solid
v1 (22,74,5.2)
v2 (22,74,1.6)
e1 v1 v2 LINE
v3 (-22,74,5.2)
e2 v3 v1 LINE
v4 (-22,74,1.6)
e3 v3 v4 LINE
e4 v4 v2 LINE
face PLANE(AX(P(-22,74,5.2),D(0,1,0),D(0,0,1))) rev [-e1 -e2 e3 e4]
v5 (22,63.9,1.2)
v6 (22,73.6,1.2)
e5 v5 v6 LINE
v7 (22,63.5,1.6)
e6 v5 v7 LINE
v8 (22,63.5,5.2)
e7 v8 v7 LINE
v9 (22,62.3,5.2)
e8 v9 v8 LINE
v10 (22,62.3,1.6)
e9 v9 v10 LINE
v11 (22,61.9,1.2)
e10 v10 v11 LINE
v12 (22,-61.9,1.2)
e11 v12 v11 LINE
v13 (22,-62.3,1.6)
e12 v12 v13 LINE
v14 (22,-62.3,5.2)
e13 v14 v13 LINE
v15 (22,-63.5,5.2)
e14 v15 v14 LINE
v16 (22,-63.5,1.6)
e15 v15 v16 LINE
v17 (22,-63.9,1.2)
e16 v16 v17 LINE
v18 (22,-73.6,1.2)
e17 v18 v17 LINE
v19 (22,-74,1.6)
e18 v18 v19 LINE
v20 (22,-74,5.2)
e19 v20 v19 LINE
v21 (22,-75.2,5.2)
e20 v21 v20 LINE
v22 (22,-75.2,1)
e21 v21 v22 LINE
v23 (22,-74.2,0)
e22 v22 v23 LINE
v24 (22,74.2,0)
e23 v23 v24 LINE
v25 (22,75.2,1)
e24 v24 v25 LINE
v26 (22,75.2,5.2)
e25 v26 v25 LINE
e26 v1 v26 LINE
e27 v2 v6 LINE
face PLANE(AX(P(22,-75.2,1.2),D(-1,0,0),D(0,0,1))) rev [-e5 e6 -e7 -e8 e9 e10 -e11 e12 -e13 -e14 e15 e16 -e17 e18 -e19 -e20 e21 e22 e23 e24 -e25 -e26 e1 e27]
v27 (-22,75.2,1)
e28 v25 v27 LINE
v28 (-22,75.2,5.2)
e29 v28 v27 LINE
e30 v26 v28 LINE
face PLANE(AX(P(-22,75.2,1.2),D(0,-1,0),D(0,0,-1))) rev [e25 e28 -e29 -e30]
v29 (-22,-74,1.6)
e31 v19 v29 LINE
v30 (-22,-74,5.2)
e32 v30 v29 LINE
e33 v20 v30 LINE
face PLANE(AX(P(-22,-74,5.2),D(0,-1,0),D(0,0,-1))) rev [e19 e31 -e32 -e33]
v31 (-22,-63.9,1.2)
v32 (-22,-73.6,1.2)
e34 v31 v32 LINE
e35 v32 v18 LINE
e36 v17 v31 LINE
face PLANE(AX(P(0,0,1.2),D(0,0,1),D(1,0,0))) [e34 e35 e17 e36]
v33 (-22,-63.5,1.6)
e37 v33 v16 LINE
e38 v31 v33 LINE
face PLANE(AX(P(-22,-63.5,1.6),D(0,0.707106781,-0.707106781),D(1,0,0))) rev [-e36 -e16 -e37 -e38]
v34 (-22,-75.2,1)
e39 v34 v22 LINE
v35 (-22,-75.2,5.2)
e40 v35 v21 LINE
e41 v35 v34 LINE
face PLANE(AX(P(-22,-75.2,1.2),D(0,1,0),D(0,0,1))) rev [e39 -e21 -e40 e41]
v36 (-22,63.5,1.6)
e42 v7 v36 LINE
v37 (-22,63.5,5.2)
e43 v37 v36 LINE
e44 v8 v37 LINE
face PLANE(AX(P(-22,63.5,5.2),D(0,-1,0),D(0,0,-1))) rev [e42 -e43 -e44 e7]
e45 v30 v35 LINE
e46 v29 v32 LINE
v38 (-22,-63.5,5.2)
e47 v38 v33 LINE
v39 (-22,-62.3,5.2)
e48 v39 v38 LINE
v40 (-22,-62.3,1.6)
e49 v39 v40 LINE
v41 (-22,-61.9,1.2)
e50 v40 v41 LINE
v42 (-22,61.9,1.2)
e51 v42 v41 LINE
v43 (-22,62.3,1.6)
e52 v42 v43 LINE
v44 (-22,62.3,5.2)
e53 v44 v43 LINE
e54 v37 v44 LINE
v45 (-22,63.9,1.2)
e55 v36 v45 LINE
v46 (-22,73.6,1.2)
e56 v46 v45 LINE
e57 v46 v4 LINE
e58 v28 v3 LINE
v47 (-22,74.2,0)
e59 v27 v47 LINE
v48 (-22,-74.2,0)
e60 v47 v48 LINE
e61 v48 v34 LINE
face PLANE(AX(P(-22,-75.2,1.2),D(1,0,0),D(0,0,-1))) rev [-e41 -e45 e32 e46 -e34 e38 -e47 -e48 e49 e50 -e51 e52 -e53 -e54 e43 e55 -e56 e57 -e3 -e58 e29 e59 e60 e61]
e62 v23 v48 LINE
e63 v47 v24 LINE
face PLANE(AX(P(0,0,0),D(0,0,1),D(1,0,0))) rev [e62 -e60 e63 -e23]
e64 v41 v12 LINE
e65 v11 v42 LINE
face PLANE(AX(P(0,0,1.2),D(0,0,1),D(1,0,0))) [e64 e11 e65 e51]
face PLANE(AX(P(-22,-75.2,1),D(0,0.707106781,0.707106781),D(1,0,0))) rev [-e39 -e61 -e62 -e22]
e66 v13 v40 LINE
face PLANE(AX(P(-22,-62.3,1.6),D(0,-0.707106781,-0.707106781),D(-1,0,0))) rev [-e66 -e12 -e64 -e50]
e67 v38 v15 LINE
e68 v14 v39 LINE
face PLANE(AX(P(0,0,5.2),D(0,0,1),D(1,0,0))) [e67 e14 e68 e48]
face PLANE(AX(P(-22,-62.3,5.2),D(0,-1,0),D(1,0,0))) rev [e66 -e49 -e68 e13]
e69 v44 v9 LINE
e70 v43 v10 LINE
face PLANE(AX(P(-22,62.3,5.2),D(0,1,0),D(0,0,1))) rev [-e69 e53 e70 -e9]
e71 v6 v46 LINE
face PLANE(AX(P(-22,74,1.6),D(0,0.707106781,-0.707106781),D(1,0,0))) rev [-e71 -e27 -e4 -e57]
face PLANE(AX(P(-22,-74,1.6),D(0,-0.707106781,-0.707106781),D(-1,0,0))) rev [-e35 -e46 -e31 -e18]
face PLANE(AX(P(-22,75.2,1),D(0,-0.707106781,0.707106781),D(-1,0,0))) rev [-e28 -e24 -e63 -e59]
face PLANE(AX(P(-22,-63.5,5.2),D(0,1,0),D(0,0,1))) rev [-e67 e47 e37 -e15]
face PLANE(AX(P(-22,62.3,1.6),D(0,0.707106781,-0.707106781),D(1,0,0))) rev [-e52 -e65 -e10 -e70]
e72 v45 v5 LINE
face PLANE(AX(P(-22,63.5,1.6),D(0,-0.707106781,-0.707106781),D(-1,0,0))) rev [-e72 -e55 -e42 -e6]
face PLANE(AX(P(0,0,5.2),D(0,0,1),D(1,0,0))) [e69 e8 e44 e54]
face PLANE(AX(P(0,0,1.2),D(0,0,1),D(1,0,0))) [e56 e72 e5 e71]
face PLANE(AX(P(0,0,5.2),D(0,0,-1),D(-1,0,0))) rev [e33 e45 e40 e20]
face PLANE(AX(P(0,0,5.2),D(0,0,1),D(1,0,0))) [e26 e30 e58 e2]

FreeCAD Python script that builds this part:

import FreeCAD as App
import Part
import Sketcher

V = App.Vector
Q = App.Units.Quantity


def edges_at(feature, points):
    """Names of the edges that pass closest to the given points."""
    edges = feature.Shape.Edges
    near = lambda p: min(range(len(edges)), key=lambda i: edges[i].distToShape(Part.Vertex(*p))[0])
    return sorted({f"Edge{near(p) + 1}" for p in points})

doc = App.newDocument("Part")
params = doc.addObject("Spreadsheet::Sheet", "Params")
for row, (alias, value) in enumerate([
    ("sketch1_width", "44 mm"),
    ("sketch1_height", "150.4 mm"),
    ("pad1_length", "1.2 mm"),
    ("sketch2_width", "44 mm"),
    ("sketch2_height", "1.2 mm"),
    ("pad2_length", "4 mm"),
    ("chamfer_size", "0.4 mm"),
    ("chamfer2_size", "1 mm"),
], start=1):
    params.set(f"A{row}", alias)
    params.set(f"B{row}", "=" + value)
    params.setAlias(f"B{row}", alias)

body = doc.addObject("PartDesign::Body", "Body")

sketch1 = body.newObject("Sketcher::SketchObject", "Sketch")
sketch1.AttachmentSupport = (doc.getObject("XY_Plane"), [""])
sketch1.MapMode = "FlatFace"
sketch1.addGeometry(Part.LineSegment(V(-22, -75, 0), V(22, -75, 0)), False)
sketch1.addGeometry(Part.LineSegment(V(22, -75, 0), V(22, 75, 0)), False)
sketch1.addGeometry(Part.LineSegment(V(22, 75, 0), V(-22, 75, 0)), False)
sketch1.addGeometry(Part.LineSegment(V(-22, 75, 0), V(-22, -75, 0)), False)
sketch1.addConstraint(Sketcher.Constraint("Coincident", 0, 2, 1, 1))
sketch1.addConstraint(Sketcher.Constraint("Coincident", 1, 2, 2, 1))
sketch1.addConstraint(Sketcher.Constraint("Coincident", 2, 2, 3, 1))
sketch1.addConstraint(Sketcher.Constraint("Coincident", 3, 2, 0, 1))
sketch1.addConstraint(Sketcher.Constraint("Horizontal", 0))
sketch1.addConstraint(Sketcher.Constraint("Vertical", 1))
sketch1.addConstraint(Sketcher.Constraint("Horizontal", 2))
sketch1.addConstraint(Sketcher.Constraint("Vertical", 3))
sketch1.addConstraint(Sketcher.Constraint("Symmetric", 0, 2, 2, 2, -1, 1))
sketch1.addConstraint(Sketcher.Constraint("DistanceX", 0, 1, 0, 2, Q("44 mm")))
sketch1.addConstraint(Sketcher.Constraint("DistanceY", 1, 1, 1, 2, Q("150.4 mm")))
sketch1.setExpression("Constraints[9]", "Params.sketch1_width")
sketch1.setExpression("Constraints[10]", "Params.sketch1_height")
pad1 = body.newObject("PartDesign::Pad", "Pad")
pad1.Profile = sketch1
pad1.setExpression("Length", "Params.pad1_length")

sketch2 = body.newObject("Sketcher::SketchObject", "Sketch001")
sketch2.AttachmentSupport = (doc.getObject("XY_Plane"), [""])
sketch2.MapMode = "FlatFace"
sketch2.AttachmentOffset = App.Placement(V(0, 0, 1.2), App.Rotation())
sketch2.addGeometry(Part.LineSegment(V(-22, 75.2, 0), V(-22, 74, 0)), False)
sketch2.addGeometry(Part.LineSegment(V(-22, 74, 0), V(22, 74, 0)), False)
sketch2.addGeometry(Part.LineSegment(V(22, 74, 0), V(22, 75.2, 0)), False)
sketch2.addGeometry(Part.LineSegment(V(22, 75.2, 0), V(-22, 75.2, 0)), False)
sketch2.addGeometry(Part.LineSegment(V(-22, -74, 0), V(-22, -75.2, 0)), False)
sketch2.addGeometry(Part.LineSegment(V(-22, -75.2, 0), V(22, -75.2, 0)), False)
sketch2.addGeometry(Part.LineSegment(V(22, -75.2, 0), V(22, -74, 0)), False)
sketch2.addGeometry(Part.LineSegment(V(22, -74, 0), V(-22, -74, 0)), False)
sketch2.addGeometry(Part.LineSegment(V(-22, -62.3, 0), V(-22, -63.5, 0)), False)
sketch2.addGeometry(Part.LineSegment(V(-22, -63.5, 0), V(22, -63.5, 0)), False)
sketch2.addGeometry(Part.LineSegment(V(22, -63.5, 0), V(22, -62.3, 0)), False)
sketch2.addGeometry(Part.LineSegment(V(22, -62.3, 0), V(-22, -62.3, 0)), False)
sketch2.addGeometry(Part.LineSegment(V(-22, 63.5, 0), V(-22, 62.3, 0)), False)
sketch2.addGeometry(Part.LineSegment(V(-22, 62.3, 0), V(22, 62.3, 0)), False)
sketch2.addGeometry(Part.LineSegment(V(22, 62.3, 0), V(22, 63.5, 0)), False)
sketch2.addGeometry(Part.LineSegment(V(22, 63.5, 0), V(-22, 63.5, 0)), False)
sketch2.addConstraint(Sketcher.Constraint("Coincident", 0, 2, 1, 1))
sketch2.addConstraint(Sketcher.Constraint("Coincident", 1, 2, 2, 1))
sketch2.addConstraint(Sketcher.Constraint("Coincident", 2, 2, 3, 1))
sketch2.addConstraint(Sketcher.Constraint("Coincident", 3, 2, 0, 1))
sketch2.addConstraint(Sketcher.Constraint("Coincident", 4, 2, 5, 1))
sketch2.addConstraint(Sketcher.Constraint("Coincident", 5, 2, 6, 1))
sketch2.addConstraint(Sketcher.Constraint("Coincident", 6, 2, 7, 1))
sketch2.addConstraint(Sketcher.Constraint("Coincident", 7, 2, 4, 1))
sketch2.addConstraint(Sketcher.Constraint("Coincident", 8, 2, 9, 1))
sketch2.addConstraint(Sketcher.Constraint("Coincident", 9, 2, 10, 1))
sketch2.addConstraint(Sketcher.Constraint("Coincident", 10, 2, 11, 1))
sketch2.addConstraint(Sketcher.Constraint("Coincident", 11, 2, 8, 1))
sketch2.addConstraint(Sketcher.Constraint("Coincident", 12, 2, 13, 1))
sketch2.addConstraint(Sketcher.Constraint("Coincident", 13, 2, 14, 1))
sketch2.addConstraint(Sketcher.Constraint("Coincident", 14, 2, 15, 1))
sketch2.addConstraint(Sketcher.Constraint("Coincident", 15, 2, 12, 1))
sketch2.addConstraint(Sketcher.Constraint("Vertical", 0))
sketch2.addConstraint(Sketcher.Constraint("Horizontal", 1))
sketch2.addConstraint(Sketcher.Constraint("Vertical", 2))
sketch2.addConstraint(Sketcher.Constraint("Horizontal", 3))
sketch2.addConstraint(Sketcher.Constraint("Vertical", 4))
sketch2.addConstraint(Sketcher.Constraint("Horizontal", 5))
sketch2.addConstraint(Sketcher.Constraint("Vertical", 6))
sketch2.addConstraint(Sketcher.Constraint("Horizontal", 7))
sketch2.addConstraint(Sketcher.Constraint("Vertical", 8))
sketch2.addConstraint(Sketcher.Constraint("Horizontal", 9))
sketch2.addConstraint(Sketcher.Constraint("Vertical", 10))
sketch2.addConstraint(Sketcher.Constraint("Horizontal", 11))
sketch2.addConstraint(Sketcher.Constraint("Vertical", 12))
sketch2.addConstraint(Sketcher.Constraint("Horizontal", 13))
sketch2.addConstraint(Sketcher.Constraint("Vertical", 14))
sketch2.addConstraint(Sketcher.Constraint("Horizontal", 15))
sketch2.addConstraint(Sketcher.Constraint("Symmetric", 2, 2, 4, 2, -1, 1))
sketch2.addConstraint(Sketcher.Constraint("Symmetric", 0, 2, 6, 2, -1, 1))
sketch2.addConstraint(Sketcher.Constraint("Symmetric", 10, 2, 12, 2, -1, 1))
sketch2.addConstraint(Sketcher.Constraint("Symmetric", 8, 2, 14, 2, -1, 1))
sketch2.addConstraint(Sketcher.Constraint("Vertical", 3, 2, 4, 2))
sketch2.addConstraint(Sketcher.Constraint("Vertical", 7, 2, 8, 2))
sketch2.addConstraint(Sketcher.Constraint("Vertical", 6, 2, 9, 2))
sketch2.addConstraint(Sketcher.Constraint("Equal", 6, 8))
sketch2.addConstraint(Sketcher.Constraint("DistanceX", 1, 1, 1, 2, Q("44 mm")))
sketch2.addConstraint(Sketcher.Constraint("DistanceY", 0, 2, 0, 1, Q("1.2 mm")))
sketch2.addConstraint(Sketcher.Constraint("DistanceY", -1, 1, 0, 2, Q("74 mm")))
sketch2.addConstraint(Sketcher.Constraint("DistanceY", 8, 2, -1, 1, Q("63.5 mm")))
sketch2.setExpression("Constraints[40]", "Params.sketch2_width")
sketch2.setExpression("Constraints[41]", "Params.sketch2_height")
pad2 = body.newObject("PartDesign::Pad", "Pad001")
pad2.Profile = sketch2
pad2.setExpression("Length", "Params.pad2_length")
doc.recompute()

chamfer = body.newObject("PartDesign::Chamfer", "Chamfer")
chamfer.Base = (pad2, edges_at(pad2, [
    (0, 74, 1.2),
    (0, -74, 1.2),
    (0, -63.5, 1.2),
    (0, -62.3, 1.2),
    (0, 62.3, 1.2),
    (0, 63.5, 1.2),
]))
chamfer.setExpression("Size", "Params.chamfer_size")
doc.recompute()

chamfer2 = body.newObject("PartDesign::Chamfer", "Chamfer001")
chamfer2.Base = (chamfer, edges_at(chamfer, [(0, -75.2, 0), (0, 75.2, 0)]))
chamfer2.setExpression("Size", "Params.chamfer2_size")

doc.recompute()
